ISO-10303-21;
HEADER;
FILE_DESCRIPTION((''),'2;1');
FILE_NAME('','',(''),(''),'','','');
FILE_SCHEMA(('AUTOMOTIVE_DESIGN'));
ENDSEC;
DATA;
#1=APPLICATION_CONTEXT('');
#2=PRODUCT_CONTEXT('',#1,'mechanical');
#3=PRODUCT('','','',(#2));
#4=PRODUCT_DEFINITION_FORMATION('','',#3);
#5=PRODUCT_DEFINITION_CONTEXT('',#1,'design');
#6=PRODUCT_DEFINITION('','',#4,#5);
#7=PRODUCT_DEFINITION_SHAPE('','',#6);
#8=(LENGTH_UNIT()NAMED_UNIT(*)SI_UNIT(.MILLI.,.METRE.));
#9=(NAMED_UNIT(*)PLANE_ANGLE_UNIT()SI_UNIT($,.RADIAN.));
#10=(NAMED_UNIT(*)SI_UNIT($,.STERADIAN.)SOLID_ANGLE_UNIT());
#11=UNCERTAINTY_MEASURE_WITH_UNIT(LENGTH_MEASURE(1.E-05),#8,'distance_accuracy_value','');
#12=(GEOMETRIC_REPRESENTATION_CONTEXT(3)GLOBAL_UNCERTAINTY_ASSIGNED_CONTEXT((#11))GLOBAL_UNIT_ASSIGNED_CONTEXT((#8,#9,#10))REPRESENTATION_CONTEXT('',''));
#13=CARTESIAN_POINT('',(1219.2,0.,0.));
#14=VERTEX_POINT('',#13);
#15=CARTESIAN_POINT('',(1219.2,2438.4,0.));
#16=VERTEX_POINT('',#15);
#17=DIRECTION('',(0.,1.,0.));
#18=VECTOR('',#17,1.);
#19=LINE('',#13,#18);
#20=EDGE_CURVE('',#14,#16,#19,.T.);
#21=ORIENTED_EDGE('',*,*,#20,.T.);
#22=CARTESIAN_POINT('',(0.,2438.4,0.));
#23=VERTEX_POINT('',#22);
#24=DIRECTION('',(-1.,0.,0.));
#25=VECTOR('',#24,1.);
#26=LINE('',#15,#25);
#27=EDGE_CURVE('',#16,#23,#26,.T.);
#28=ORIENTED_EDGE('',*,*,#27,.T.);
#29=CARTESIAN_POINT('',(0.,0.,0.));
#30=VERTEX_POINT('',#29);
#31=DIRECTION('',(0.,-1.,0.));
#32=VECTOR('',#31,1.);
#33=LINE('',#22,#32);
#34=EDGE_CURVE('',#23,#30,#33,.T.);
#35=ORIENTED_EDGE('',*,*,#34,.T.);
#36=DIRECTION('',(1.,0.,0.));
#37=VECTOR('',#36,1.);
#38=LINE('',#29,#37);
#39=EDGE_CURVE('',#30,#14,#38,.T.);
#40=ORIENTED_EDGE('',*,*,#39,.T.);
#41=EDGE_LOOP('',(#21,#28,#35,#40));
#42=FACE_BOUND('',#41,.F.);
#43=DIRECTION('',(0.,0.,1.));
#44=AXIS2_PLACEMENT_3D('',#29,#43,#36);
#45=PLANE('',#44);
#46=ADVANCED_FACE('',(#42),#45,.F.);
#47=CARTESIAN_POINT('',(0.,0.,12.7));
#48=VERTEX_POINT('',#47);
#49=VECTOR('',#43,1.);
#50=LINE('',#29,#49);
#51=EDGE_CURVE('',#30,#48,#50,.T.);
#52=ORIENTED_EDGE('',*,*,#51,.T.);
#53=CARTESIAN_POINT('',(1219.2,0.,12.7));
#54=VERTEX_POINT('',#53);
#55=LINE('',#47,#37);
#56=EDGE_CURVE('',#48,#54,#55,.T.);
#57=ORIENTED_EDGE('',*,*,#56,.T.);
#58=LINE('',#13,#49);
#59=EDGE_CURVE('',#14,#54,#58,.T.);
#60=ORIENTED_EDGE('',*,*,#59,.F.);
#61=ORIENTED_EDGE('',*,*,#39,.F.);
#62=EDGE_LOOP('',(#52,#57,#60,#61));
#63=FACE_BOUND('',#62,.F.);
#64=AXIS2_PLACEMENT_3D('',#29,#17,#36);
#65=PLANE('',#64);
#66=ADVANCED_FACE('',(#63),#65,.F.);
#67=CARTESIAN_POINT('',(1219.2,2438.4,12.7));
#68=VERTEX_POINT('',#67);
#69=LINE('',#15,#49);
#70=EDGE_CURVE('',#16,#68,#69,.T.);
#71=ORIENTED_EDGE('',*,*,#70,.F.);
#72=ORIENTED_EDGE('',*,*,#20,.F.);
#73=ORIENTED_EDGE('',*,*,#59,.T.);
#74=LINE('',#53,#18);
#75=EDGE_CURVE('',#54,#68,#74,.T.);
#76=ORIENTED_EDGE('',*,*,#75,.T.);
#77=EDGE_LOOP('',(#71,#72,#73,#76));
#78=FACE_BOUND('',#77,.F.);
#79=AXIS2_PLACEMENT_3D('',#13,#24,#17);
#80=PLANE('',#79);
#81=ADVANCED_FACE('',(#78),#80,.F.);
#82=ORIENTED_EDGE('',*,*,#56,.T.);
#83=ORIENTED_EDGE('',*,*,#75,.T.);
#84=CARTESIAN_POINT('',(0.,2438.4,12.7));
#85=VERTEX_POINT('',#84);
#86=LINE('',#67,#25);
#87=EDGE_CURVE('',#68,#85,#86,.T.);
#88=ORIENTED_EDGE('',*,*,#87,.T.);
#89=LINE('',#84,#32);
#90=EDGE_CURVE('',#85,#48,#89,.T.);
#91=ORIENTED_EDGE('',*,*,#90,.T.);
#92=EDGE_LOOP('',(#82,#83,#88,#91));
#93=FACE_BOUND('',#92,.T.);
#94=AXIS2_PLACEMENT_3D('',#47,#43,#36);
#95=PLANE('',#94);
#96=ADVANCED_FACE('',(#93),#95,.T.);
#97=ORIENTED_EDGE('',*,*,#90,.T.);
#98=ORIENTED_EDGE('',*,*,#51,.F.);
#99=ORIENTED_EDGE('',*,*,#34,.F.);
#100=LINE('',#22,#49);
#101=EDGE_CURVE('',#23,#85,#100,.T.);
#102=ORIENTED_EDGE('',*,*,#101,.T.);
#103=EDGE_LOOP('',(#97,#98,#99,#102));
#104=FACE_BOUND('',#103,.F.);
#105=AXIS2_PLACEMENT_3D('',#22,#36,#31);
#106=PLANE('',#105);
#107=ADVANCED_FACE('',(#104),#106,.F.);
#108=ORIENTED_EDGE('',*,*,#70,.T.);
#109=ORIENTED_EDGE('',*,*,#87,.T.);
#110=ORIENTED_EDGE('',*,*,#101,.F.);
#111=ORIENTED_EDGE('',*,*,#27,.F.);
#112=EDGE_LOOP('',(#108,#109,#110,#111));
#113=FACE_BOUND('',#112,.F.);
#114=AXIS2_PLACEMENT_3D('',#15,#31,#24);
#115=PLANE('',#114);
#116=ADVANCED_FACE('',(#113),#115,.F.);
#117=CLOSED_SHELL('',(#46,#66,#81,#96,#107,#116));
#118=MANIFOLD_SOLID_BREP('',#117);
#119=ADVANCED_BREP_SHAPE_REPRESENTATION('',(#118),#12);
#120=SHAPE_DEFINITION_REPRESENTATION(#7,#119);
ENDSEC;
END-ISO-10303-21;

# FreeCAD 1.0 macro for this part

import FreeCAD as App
import Part
import Sketcher
Q = App.Units.Quantity


def add_polygon(sketch, points):
    """Adds a closed chain of lines whose ends are joined by coincident constraints."""
    first, n = sketch.GeometryCount, len(points)
    for a, b in zip(points, points[1:] + points[:1]):
        sketch.addGeometry(Part.LineSegment(App.Vector(*a, 0), App.Vector(*b, 0)), False)
    for i in range(n):
        sketch.addConstraint(Sketcher.Constraint("Coincident", first + i, 2, first + (i + 1) % n, 1))

doc = App.newDocument("Part")
body = doc.addObject("PartDesign::Body", "Body")

# Sketch on XY plane
sketch1 = body.newObject("Sketcher::SketchObject", "Sketch")
sketch1.AttachmentSupport = (doc.getObject("XY_Plane"), [""])
sketch1.MapMode = "FlatFace"
add_polygon(sketch1, [(0, 2438), (0, 0), (1219, 0), (1219, 2438)])  # lines 0-3
sketch1.addConstraint([
    Sketcher.Constraint("Vertical", 0),
    Sketcher.Constraint("Horizontal", 1),
    Sketcher.Constraint("Vertical", 2),
    Sketcher.Constraint("Horizontal", 3),
    Sketcher.Constraint("Coincident", 0, 2, -1, 1),
    Sketcher.Constraint("DistanceX", 1, 1, 1, 2, Q("48 in")),
    Sketcher.Constraint("DistanceY", 0, 2, 0, 1, Q("96 in")),
])
pad1 = body.newObject("PartDesign::Pad", "Pad")
pad1.Profile = sketch1
pad1.Length = Q("0.5 in")

doc.recompute()
